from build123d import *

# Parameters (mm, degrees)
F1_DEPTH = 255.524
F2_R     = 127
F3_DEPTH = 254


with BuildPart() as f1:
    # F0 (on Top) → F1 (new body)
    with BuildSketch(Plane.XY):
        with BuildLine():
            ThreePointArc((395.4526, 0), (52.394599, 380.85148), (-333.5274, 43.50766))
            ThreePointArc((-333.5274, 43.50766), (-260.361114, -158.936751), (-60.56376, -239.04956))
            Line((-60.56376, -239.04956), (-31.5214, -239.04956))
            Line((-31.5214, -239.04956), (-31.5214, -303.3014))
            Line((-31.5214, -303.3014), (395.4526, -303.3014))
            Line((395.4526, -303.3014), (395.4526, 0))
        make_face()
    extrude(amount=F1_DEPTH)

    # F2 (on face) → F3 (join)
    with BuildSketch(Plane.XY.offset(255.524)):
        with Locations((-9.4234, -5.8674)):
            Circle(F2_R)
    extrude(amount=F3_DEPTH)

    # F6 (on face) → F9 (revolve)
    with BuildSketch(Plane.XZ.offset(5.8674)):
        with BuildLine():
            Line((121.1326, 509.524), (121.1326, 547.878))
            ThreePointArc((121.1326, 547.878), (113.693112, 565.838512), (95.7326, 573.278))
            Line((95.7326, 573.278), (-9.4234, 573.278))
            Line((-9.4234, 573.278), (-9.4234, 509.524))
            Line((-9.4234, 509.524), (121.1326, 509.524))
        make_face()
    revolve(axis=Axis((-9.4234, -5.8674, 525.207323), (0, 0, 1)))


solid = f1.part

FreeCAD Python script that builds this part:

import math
import FreeCAD as App
import Part
import Sketcher
Q = App.Units.Quantity

doc = App.newDocument("Part")
params = doc.addObject("Spreadsheet::Sheet", "Params")
for row, (alias, value) in enumerate([
    ("sketch1_width", "16.81 in"),
    ("sketch1_height", "11.941 in"),
    ("pad1_length", "10.06 in"),
    ("sketch2_diameter", "10 in"),
    ("pad2_length", "10 in"),
    ("sketch3_radius", "1 in"),
    ("sketch3_width", "4.14 in"),
    ("sketch3_height", "1.51 in"),
    ("revolution_angle", "360 deg"),
], start=1):
    params.set(f"A{row}", alias)
    params.set(f"B{row}", "=" + value)
    params.setAlias(f"B{row}", alias)

body = doc.addObject("PartDesign::Body", "Body")

sketch1 = body.newObject("Sketcher::SketchObject", "Sketch")
sketch1.AttachmentSupport = (doc.getObject("XY_Plane"), [""])
sketch1.MapMode = "FlatFace"
sketch1.addGeometry([
    Part.ArcOfCircle(Part.Circle(App.Vector(31, 16, 0), App.Vector(0, 0, 1), 365), math.radians(-3), math.radians(176)),
    Part.ArcOfCircle(Part.Circle(App.Vector(-71, 24, 0), App.Vector(0, 0, 1), 263), math.radians(176), math.radians(272)),
    Part.LineSegment(App.Vector(-61, -239, 0), App.Vector(-32, -239, 0)),
    Part.LineSegment(App.Vector(-32, -239, 0), App.Vector(-32, -303, 0)),
    Part.LineSegment(App.Vector(-32, -303, 0), App.Vector(395, -303, 0)),
    Part.LineSegment(App.Vector(395, -303, 0), App.Vector(395, 0, 0)),
], False)
sketch1.addConstraint([
    Sketcher.Constraint("Tangent", 0, 2, 1, 1),
    Sketcher.Constraint("Coincident", 1, 2, 2, 1),
    Sketcher.Constraint("Coincident", 2, 2, 3, 1),
    Sketcher.Constraint("Coincident", 3, 2, 4, 1),
    Sketcher.Constraint("Coincident", 4, 2, 5, 1),
    Sketcher.Constraint("Coincident", 5, 2, 0, 1),
    Sketcher.Constraint("Horizontal", 2),
    Sketcher.Constraint("Vertical", 3),
    Sketcher.Constraint("Horizontal", 4),
    Sketcher.Constraint("Vertical", 5),
    Sketcher.Constraint("PointOnObject", 5, 2, -1),
    Sketcher.Constraint("DistanceX", 4, 1, 4, 2, Q("16.81 in")),
    Sketcher.Constraint("DistanceY", 5, 1, 5, 2, Q("11.941 in")),
    Sketcher.Constraint("DistanceX", 0, 2, 2, 2, Q("11.89 in")),
    Sketcher.Constraint("DistanceX", 2, 1, 2, 2, Q("1.1434 in")),
    Sketcher.Constraint("DistanceY", 3, 2, 3, 1, Q("2.5296 in")),
    Sketcher.Constraint("DistanceX", 0, 2, -1, 1, Q("13.131 in")),
    Sketcher.Constraint("DistanceY", -1, 1, 0, 2, Q("1.7129 in")),
    Sketcher.Constraint("Radius", 0, 365.179148),
])
sketch1.setExpression("Constraints[11]", "Params.sketch1_width")
sketch1.setExpression("Constraints[12]", "Params.sketch1_height")
pad1 = body.newObject("PartDesign::Pad", "Pad")
pad1.Profile = sketch1
pad1.setExpression("Length", "Params.pad1_length")

sketch2 = body.newObject("Sketcher::SketchObject", "Sketch001")
sketch2.AttachmentSupport = (doc.getObject("XY_Plane"), [""])
sketch2.MapMode = "FlatFace"
sketch2.AttachmentOffset = App.Placement(App.Vector(0, 0, 10.06 * 25.4), App.Rotation())
sketch2.addGeometry(Part.Circle(App.Vector(-9, -6, 0), App.Vector(0, 0, 1), 127), False)
sketch2.addConstraint([
    Sketcher.Constraint("Diameter", 0, Q("10 in")),
    Sketcher.Constraint("DistanceX", 0, 3, -1, 1, Q("0.371 in")),
    Sketcher.Constraint("DistanceY", 0, 3, -1, 1, Q("0.231 in")),
])
sketch2.setExpression("Constraints[0]", "Params.sketch2_diameter")
pad2 = body.newObject("PartDesign::Pad", "Pad001")
pad2.Profile = sketch2
pad2.setExpression("Length", "Params.pad2_length")

sketch3 = body.newObject("Sketcher::SketchObject", "Sketch002")
sketch3.AttachmentSupport = (doc.getObject("XZ_Plane"), [""])
sketch3.MapMode = "FlatFace"
sketch3.AttachmentOffset = App.Placement(App.Vector(0, 0, 0.231 * 25.4), App.Rotation())
sketch3.addGeometry([
    Part.LineSegment(App.Vector(121, 510, 0), App.Vector(121, 548, 0)),
    Part.ArcOfCircle(Part.Circle(App.Vector(96, 548, 0), App.Vector(0, 0, 1), 25), math.radians(0), math.radians(90)),
    Part.LineSegment(App.Vector(96, 573, 0), App.Vector(-9, 573, 0)),
    Part.LineSegment(App.Vector(-9, 573, 0), App.Vector(-9, 510, 0)),
    Part.LineSegment(App.Vector(-9, 510, 0), App.Vector(121, 510, 0)),
], False)
sketch3.addGeometry(Part.LineSegment(App.Vector(-9, 510, 0), App.Vector(-9, 573, 0)), True)
sketch3.addConstraint([
    Sketcher.Constraint("Tangent", 0, 2, 1, 1),
    Sketcher.Constraint("Tangent", 1, 2, 2, 1),
    Sketcher.Constraint("Coincident", 2, 2, 3, 1),
    Sketcher.Constraint("Coincident", 3, 2, 4, 1),
    Sketcher.Constraint("Coincident", 4, 2, 0, 1),
    Sketcher.Constraint("Vertical", 0),
    Sketcher.Constraint("Horizontal", 2),
    Sketcher.Constraint("Vertical", 3),
    Sketcher.Constraint("Horizontal", 4),
    Sketcher.Constraint("Vertical", 5),
    Sketcher.Constraint("Coincident", 5, 1, 3, 2),
    Sketcher.Constraint("Horizontal", 1, 2, 5, 2),
    Sketcher.Constraint("Radius", 1, Q("1 in")),
    Sketcher.Constraint("DistanceX", 2, 2, 2, 1, Q("4.14 in")),
    Sketcher.Constraint("DistanceY", 0, 1, 0, 2, Q("1.51 in")),
    Sketcher.Constraint("DistanceY", -1, 1, 1, 3, Q("21.57 in")),
    Sketcher.Constraint("DistanceX", -1, 1, 1, 3, Q("3.769 in")),
])
sketch3.setExpression("Constraints[12]", "Params.sketch3_radius")
sketch3.setExpression("Constraints[13]", "Params.sketch3_width")
sketch3.setExpression("Constraints[14]", "Params.sketch3_height")
revolution = body.newObject("PartDesign::Revolution", "Revolution")
revolution.Profile = sketch3
revolution.ReferenceAxis = (sketch3, ["Axis0"])
revolution.setExpression("Angle", "Params.revolution_angle")

doc.recompute()
